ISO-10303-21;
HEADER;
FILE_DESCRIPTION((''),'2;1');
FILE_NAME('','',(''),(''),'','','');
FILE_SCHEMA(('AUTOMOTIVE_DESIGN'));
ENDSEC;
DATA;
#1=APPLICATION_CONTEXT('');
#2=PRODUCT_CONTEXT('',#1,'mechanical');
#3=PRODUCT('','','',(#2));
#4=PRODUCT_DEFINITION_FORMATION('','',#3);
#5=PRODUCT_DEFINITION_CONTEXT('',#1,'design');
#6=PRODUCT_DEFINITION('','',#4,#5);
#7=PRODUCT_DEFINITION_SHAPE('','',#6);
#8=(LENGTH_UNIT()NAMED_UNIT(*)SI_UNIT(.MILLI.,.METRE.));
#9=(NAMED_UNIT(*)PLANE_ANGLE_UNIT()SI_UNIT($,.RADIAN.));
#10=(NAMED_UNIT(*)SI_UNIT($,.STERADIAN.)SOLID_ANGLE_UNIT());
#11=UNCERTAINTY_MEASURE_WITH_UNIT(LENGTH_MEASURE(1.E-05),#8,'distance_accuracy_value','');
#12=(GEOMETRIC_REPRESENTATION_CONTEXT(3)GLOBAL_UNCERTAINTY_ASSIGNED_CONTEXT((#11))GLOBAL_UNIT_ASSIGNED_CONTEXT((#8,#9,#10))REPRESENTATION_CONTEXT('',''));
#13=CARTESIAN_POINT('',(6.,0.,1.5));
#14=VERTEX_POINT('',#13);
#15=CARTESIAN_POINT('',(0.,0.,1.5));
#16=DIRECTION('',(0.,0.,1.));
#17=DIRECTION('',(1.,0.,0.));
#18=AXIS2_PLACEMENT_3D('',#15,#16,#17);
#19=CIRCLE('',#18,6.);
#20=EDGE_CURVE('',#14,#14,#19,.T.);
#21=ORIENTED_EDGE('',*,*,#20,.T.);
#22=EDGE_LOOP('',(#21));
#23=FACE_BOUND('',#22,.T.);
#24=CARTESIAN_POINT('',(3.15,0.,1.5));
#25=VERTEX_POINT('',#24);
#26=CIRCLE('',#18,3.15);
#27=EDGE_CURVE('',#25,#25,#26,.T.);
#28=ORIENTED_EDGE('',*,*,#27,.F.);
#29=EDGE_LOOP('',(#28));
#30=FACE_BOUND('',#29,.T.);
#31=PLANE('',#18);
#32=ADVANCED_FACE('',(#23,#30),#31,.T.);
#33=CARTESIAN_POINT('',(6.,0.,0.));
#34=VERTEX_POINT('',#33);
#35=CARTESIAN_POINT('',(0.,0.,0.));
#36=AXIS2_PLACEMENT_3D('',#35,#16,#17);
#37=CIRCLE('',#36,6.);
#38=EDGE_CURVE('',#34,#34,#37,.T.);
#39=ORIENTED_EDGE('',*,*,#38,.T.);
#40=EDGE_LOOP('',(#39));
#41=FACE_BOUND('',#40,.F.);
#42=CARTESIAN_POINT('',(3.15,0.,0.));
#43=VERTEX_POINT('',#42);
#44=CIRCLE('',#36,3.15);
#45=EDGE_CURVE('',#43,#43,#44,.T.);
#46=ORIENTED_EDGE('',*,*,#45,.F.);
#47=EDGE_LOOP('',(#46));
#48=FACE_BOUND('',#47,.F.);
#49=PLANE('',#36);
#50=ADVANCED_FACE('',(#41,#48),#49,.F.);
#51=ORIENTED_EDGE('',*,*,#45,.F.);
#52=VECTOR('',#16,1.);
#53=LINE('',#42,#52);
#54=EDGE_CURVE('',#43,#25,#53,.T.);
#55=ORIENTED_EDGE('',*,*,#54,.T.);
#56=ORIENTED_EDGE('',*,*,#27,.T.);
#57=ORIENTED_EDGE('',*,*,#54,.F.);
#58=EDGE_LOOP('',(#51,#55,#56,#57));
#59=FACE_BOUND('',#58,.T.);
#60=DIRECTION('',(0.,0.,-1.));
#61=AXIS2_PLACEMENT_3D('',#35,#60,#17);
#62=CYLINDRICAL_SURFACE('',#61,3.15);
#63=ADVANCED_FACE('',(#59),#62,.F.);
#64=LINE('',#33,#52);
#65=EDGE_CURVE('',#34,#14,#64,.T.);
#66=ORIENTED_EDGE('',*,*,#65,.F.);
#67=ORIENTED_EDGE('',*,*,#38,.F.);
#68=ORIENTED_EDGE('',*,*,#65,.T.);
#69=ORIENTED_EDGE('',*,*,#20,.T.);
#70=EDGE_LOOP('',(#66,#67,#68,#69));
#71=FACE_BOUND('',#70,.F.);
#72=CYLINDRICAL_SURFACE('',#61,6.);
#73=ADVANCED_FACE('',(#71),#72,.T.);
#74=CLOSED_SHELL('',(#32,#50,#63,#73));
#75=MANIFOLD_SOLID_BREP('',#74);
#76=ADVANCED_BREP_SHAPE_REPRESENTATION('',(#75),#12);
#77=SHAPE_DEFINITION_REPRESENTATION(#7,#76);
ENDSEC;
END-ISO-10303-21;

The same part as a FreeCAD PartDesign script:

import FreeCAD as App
import Part
import Sketcher

V = App.Vector
Q = App.Units.Quantity

doc = App.newDocument("Part")
body = doc.addObject("PartDesign::Body", "Body")

# Sketch on XY plane
sketch1 = body.newObject("Sketcher::SketchObject", "Sketch")
sketch1.AttachmentSupport = (doc.getObject("XY_Plane"), [""])
sketch1.MapMode = "FlatFace"
sketch1.addGeometry([
    Part.Circle(V(0, 0, 0), V(0, 0, 1), 6),
    Part.Circle(V(0, 0, 0), V(0, 0, 1), 3.15),
], False)
sketch1.addConstraint([
    Sketcher.Constraint("Coincident", 0, 3, -1, 1),
    Sketcher.Constraint("Coincident", 1, 3, -1, 1),
    Sketcher.Constraint("Diameter", 0, Q("12 mm")),
    Sketcher.Constraint("Diameter", 1, Q("6.3 mm")),
])
pad1 = body.newObject("PartDesign::Pad", "Pad")
pad1.Profile = sketch1
pad1.Length = 1.5

doc.recompute()
